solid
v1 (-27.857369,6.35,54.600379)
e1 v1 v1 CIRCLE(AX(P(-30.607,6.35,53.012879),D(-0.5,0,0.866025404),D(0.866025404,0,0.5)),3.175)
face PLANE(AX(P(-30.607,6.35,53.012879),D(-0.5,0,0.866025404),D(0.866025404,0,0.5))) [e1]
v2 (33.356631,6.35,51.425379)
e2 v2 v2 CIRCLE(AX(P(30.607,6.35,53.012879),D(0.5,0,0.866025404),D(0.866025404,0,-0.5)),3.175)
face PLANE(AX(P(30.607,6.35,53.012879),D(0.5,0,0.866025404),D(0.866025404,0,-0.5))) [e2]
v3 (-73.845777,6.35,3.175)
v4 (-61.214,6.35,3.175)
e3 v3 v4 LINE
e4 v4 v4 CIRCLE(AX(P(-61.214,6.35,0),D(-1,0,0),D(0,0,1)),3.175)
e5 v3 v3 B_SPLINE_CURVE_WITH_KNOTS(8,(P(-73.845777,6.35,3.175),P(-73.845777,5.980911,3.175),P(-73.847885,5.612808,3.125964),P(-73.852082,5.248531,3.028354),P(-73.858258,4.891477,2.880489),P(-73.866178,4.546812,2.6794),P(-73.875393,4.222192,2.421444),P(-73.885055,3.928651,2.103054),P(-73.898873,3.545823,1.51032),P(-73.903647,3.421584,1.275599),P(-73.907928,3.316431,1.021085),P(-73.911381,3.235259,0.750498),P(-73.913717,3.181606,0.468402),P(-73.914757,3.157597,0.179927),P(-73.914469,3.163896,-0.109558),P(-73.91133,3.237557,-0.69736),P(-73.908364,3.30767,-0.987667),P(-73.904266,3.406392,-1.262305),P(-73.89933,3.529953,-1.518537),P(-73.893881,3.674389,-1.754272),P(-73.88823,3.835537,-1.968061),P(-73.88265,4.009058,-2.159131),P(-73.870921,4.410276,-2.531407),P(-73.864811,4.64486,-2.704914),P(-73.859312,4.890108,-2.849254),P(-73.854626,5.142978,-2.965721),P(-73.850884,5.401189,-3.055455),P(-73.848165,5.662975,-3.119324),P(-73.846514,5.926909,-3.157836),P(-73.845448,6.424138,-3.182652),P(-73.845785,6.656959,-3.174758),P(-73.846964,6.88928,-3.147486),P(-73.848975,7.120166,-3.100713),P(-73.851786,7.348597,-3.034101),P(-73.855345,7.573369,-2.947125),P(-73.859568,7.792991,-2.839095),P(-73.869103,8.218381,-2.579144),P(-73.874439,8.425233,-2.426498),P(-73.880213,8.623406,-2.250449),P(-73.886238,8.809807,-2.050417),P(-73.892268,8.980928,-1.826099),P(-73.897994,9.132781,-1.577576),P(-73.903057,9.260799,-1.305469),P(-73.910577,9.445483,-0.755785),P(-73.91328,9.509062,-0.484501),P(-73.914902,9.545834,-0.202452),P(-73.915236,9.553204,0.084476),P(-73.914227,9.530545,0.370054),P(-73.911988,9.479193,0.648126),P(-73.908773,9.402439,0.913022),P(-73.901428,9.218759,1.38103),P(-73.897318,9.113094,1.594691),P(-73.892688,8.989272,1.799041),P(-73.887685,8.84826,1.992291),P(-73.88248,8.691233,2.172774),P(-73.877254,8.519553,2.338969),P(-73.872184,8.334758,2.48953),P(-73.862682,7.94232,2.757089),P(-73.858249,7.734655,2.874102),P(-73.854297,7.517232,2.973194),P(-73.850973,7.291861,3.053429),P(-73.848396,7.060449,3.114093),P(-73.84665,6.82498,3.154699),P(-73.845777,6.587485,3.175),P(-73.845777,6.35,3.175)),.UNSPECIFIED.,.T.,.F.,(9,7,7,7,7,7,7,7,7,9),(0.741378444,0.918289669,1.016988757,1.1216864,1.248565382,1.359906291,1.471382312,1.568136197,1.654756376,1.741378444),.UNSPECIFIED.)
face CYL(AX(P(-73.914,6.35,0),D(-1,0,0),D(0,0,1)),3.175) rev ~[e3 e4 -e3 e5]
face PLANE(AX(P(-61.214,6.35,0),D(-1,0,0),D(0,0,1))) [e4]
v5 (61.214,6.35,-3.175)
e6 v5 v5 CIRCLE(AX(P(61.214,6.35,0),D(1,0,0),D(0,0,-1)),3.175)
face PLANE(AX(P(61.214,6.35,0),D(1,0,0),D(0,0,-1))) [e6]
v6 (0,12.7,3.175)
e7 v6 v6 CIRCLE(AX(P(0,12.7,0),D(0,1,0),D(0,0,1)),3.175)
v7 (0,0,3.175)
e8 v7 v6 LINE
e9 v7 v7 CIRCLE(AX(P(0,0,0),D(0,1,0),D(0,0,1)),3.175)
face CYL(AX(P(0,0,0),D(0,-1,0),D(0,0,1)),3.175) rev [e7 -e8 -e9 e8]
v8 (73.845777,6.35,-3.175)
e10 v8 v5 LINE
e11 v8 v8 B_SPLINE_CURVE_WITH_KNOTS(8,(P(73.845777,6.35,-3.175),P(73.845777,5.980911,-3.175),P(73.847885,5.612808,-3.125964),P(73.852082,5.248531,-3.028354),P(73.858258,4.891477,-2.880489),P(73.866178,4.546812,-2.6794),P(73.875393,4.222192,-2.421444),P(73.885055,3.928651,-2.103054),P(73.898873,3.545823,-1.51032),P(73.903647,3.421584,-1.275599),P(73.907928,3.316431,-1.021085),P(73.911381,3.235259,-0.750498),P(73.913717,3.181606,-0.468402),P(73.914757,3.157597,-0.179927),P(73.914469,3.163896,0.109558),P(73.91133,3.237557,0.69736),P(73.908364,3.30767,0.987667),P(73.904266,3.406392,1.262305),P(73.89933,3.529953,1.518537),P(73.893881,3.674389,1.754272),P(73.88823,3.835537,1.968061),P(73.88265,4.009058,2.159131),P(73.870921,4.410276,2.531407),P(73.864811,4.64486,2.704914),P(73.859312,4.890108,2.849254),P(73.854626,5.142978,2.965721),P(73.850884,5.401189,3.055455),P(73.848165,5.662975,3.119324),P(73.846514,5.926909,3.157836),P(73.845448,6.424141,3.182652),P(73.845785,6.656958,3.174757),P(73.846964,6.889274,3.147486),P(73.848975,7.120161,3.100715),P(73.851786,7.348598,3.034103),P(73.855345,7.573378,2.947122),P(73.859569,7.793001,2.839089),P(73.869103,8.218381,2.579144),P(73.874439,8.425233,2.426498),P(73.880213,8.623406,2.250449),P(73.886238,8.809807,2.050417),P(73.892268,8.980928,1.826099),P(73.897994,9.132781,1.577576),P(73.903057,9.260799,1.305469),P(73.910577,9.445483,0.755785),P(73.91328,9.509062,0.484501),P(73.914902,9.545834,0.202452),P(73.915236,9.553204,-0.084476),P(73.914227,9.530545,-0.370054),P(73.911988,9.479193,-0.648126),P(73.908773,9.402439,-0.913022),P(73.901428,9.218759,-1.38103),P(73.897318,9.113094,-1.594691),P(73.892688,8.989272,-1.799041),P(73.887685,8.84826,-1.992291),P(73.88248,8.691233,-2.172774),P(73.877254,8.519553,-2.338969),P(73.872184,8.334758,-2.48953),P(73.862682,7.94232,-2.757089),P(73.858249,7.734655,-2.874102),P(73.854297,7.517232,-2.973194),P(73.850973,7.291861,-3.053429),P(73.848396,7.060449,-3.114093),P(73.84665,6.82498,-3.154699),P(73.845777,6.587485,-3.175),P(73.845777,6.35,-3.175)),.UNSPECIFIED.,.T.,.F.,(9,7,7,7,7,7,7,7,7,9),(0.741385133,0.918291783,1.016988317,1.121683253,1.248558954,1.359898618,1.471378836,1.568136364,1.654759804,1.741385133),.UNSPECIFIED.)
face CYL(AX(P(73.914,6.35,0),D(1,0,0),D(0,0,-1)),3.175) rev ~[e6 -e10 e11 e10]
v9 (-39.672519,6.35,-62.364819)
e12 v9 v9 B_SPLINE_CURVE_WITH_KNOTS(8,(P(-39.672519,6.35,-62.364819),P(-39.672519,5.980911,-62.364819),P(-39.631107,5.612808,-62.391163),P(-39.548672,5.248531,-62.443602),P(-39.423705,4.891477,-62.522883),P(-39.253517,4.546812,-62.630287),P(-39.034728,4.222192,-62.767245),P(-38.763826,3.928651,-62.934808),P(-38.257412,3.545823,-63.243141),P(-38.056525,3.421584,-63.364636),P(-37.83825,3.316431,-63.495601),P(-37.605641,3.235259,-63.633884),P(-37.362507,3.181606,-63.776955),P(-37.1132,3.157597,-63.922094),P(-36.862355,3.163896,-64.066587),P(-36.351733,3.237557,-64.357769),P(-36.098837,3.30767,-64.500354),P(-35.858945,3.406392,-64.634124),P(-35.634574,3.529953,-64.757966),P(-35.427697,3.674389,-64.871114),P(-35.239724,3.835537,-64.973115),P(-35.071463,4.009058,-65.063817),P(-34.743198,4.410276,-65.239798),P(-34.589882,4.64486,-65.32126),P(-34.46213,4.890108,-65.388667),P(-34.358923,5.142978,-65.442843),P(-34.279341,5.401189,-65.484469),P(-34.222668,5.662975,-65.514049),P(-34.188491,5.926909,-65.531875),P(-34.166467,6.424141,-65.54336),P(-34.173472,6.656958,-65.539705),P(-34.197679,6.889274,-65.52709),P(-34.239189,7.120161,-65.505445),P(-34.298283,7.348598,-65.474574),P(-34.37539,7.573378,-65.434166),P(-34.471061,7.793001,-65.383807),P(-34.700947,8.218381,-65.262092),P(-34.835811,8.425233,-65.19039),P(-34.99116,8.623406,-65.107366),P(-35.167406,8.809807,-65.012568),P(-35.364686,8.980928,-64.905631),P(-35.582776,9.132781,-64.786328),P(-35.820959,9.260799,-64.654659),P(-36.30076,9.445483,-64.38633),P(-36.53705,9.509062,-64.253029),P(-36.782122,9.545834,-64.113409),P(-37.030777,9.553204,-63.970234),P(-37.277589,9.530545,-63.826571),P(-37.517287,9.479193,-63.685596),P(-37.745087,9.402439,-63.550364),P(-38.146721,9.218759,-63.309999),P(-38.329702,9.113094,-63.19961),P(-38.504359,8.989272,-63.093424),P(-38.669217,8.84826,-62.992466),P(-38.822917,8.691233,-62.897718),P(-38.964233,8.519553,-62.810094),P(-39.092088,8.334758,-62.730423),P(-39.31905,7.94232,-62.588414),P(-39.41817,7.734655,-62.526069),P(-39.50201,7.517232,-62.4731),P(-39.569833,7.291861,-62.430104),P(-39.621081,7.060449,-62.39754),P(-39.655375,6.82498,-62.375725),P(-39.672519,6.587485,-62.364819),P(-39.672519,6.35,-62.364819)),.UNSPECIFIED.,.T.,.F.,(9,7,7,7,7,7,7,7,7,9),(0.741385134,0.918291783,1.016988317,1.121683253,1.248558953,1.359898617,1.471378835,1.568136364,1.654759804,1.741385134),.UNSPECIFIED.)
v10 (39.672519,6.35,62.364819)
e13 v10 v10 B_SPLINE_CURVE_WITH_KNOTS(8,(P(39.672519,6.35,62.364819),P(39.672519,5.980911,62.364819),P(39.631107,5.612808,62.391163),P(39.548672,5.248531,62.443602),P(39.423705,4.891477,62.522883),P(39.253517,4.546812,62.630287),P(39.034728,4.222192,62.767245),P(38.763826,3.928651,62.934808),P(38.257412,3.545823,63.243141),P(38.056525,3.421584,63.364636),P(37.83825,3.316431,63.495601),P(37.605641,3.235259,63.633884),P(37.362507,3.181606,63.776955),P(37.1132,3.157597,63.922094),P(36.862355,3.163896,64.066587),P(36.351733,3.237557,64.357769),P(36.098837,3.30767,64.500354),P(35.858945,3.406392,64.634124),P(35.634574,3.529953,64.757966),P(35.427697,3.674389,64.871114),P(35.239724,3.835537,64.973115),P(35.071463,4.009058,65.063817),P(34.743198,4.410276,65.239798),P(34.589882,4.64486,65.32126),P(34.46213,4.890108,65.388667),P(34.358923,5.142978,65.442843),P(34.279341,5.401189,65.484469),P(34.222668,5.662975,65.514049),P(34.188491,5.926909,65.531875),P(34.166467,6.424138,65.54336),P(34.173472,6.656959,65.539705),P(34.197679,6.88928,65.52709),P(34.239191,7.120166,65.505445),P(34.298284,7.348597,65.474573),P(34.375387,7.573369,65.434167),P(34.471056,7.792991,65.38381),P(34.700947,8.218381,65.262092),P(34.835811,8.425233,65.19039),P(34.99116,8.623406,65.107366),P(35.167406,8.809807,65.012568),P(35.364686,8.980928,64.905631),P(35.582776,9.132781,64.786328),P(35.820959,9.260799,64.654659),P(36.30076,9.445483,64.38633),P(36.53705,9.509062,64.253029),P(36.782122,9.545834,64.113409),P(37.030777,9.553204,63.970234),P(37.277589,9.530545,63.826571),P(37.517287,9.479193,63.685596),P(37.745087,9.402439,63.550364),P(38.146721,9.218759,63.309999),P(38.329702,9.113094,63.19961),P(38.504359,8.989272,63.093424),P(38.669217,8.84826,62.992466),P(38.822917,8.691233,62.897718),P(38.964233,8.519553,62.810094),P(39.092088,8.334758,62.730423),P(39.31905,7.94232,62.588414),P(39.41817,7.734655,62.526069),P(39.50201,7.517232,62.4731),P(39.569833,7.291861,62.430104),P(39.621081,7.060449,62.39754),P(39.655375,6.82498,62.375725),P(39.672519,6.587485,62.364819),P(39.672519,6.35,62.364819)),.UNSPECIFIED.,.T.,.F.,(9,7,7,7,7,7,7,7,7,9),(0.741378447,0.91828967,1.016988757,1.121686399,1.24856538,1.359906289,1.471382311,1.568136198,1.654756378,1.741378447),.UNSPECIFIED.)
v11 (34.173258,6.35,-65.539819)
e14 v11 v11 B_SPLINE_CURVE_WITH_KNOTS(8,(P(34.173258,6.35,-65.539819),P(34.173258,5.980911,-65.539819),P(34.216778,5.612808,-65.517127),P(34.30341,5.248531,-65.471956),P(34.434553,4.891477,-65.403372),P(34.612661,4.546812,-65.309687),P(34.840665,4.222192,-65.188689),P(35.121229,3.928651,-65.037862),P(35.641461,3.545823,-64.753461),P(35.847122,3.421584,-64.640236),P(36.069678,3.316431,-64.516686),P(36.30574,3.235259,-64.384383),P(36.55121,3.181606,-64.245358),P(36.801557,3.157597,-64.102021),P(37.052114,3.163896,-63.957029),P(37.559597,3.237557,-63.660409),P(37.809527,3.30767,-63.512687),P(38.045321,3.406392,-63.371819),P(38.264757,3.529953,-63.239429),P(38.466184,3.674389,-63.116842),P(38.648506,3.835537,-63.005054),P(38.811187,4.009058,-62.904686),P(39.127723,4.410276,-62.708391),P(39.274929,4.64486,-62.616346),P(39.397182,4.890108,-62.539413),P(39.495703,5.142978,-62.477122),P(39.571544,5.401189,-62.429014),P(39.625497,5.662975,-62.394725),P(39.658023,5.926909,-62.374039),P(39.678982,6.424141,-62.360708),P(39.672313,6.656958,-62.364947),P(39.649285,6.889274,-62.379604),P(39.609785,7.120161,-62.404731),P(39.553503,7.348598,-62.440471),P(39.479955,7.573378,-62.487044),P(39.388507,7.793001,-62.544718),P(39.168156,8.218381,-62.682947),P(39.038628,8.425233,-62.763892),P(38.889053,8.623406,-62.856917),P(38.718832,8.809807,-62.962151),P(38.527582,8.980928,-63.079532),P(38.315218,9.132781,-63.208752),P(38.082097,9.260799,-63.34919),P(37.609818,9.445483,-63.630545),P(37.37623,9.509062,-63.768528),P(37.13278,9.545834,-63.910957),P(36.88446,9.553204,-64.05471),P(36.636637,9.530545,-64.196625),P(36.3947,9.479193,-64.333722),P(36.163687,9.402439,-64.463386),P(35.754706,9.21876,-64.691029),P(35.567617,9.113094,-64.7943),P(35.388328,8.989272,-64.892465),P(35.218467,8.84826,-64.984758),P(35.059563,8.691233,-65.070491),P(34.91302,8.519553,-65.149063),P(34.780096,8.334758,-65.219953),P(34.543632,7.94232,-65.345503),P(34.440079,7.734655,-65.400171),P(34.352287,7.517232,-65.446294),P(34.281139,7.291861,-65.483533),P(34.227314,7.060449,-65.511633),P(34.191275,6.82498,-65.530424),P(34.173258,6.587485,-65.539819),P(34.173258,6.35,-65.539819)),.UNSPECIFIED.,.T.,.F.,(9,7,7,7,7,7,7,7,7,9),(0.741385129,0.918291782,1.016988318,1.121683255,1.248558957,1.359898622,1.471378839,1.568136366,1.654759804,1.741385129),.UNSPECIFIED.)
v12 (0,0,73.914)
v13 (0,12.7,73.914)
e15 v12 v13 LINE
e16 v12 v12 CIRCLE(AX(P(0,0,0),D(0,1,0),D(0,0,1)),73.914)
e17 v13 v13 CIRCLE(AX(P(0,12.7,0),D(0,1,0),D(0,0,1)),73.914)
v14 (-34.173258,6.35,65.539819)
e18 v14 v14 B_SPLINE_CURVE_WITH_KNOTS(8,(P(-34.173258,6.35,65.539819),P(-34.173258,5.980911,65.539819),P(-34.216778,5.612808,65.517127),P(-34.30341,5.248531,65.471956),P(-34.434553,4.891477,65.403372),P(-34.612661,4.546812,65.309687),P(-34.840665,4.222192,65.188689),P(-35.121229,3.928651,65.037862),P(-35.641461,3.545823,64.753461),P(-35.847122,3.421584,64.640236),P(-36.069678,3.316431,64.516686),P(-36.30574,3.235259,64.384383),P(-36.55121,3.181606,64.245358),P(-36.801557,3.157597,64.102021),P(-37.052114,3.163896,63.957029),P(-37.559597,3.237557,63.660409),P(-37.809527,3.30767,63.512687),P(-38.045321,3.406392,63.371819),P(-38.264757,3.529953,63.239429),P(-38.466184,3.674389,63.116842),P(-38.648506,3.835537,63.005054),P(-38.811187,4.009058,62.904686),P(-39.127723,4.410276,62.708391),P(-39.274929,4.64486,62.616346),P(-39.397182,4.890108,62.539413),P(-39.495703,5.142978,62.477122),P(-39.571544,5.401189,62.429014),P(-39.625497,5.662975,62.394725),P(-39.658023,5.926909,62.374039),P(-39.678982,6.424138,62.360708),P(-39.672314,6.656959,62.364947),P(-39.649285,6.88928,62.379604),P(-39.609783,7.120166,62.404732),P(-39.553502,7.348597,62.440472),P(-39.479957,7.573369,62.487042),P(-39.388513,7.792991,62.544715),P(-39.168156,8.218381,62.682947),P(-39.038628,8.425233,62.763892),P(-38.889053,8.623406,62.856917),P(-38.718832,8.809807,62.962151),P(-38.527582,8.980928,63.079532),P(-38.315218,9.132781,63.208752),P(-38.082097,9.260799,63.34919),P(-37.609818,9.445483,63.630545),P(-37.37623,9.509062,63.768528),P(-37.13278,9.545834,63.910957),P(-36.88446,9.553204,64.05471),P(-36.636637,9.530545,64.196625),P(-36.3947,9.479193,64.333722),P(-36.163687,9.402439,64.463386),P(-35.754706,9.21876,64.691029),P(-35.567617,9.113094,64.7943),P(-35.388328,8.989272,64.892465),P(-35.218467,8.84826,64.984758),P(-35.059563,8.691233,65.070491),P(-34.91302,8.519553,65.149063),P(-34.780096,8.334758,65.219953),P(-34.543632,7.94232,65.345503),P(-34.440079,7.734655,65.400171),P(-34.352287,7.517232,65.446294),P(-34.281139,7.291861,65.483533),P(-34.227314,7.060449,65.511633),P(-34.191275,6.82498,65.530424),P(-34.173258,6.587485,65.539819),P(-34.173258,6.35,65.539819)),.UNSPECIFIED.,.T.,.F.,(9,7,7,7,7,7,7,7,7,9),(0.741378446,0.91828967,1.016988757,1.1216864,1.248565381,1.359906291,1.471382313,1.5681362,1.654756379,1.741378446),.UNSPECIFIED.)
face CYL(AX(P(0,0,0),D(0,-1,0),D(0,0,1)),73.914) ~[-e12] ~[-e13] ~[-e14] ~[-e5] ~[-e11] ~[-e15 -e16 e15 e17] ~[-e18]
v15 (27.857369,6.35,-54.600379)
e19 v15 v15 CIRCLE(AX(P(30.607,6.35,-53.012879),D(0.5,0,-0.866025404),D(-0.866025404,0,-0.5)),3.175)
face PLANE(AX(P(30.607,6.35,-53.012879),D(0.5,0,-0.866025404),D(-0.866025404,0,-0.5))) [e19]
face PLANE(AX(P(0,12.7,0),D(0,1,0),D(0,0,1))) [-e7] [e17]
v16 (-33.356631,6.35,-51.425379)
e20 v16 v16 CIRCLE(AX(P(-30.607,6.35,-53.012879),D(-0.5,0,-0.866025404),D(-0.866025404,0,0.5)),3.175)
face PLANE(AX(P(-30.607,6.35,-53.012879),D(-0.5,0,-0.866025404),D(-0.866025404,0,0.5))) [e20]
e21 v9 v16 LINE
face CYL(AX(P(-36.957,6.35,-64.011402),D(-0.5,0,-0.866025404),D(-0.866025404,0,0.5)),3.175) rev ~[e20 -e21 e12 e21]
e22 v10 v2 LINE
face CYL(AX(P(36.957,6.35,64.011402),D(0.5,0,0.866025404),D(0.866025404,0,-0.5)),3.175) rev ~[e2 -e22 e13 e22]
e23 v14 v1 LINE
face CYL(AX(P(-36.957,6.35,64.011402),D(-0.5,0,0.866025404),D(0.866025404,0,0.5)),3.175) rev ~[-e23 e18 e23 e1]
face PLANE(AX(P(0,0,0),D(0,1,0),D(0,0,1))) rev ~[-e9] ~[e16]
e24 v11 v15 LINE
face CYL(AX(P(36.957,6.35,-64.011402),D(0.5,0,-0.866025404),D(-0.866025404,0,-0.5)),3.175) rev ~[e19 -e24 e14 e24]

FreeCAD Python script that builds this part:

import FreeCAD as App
import Part
import Sketcher
from FreeCAD import Vector
Q = App.Units.Quantity

doc = App.newDocument("Part")
body = doc.addObject("PartDesign::Body", "Body")

# Sketch on XZ plane
sketch1 = body.newObject("Sketcher::SketchObject", "Sketch")
sketch1.AttachmentSupport = (doc.getObject("XZ_Plane"), [""])
sketch1.MapMode = "FlatFace"
sketch1.addGeometry(Part.Circle(Vector(0, 0, 0), Vector(0, 0, 1), 73.9), False)
sketch1.addGeometry(Part.Circle(Vector(0, 0, 0), Vector(0, 0, 1), 3.2), False)
sketch1.addConstraint(Sketcher.Constraint("Coincident", 0, 3, -1, 1))
sketch1.addConstraint(Sketcher.Constraint("Coincident", 1, 3, -1, 1))
sketch1.addConstraint(Sketcher.Constraint("Diameter", 0, Q("5.82 in")))
sketch1.addConstraint(Sketcher.Constraint("Diameter", 1, Q("0.25 in")))
pad1 = body.newObject("PartDesign::Pad", "Pad")
pad1.Profile = sketch1
pad1.Length = Q("0.5 in")
pad1.Reversed = True

# Sketch on YZ plane
sketch2 = body.newObject("Sketcher::SketchObject", "Sketch001")
sketch2.AttachmentSupport = (doc.getObject("YZ_Plane"), [""])
sketch2.MapMode = "FlatFace"
sketch2.AttachmentOffset = App.Placement(Vector(0, 0, 2.91 * 25.4), App.Rotation())
sketch2.addGeometry(Part.Circle(Vector(6.3, 0, 0), Vector(0, 0, 1), 3.2), False)
sketch2.addConstraint(Sketcher.Constraint("PointOnObject", 0, 3, -1))
sketch2.addConstraint(Sketcher.Constraint("Diameter", 0, Q("0.25 in")))
sketch2.addConstraint(Sketcher.Constraint("DistanceX", -1, 1, 0, 3, Q("0.25 in")))
pocket1 = body.newObject("PartDesign::Pocket", "Pocket")
pocket1.Profile = sketch2
pocket1.Length = Q("0.5 in")
doc.recompute()

polarpattern = body.newObject("PartDesign::PolarPattern", "PolarPattern")
polarpattern.Originals = [pocket1]
polarpattern.Axis = (doc.getObject("Y_Axis"), [""])
polarpattern.Angle = 360
polarpattern.Occurrences = 6
body.Tip = polarpattern

doc.recompute()
